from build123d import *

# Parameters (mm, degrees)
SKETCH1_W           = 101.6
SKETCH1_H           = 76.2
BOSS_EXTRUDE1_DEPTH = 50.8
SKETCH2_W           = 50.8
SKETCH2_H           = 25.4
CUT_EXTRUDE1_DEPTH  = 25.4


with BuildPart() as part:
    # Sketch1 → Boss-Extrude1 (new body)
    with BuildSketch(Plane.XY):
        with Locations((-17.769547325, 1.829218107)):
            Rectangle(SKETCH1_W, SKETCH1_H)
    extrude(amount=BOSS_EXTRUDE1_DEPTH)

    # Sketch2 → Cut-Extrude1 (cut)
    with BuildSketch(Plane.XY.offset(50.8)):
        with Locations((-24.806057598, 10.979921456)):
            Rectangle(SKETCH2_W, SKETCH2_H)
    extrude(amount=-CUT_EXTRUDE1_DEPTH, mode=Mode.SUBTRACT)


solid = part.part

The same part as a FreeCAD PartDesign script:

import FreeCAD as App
import Part
import Sketcher

V = App.Vector
Q = App.Units.Quantity

doc = App.newDocument("Part")
body = doc.addObject("PartDesign::Body", "Body")

# Sketch on XY plane
sketch1 = body.newObject("Sketcher::SketchObject", "Sketch")
sketch1.AttachmentSupport = (doc.getObject("XY_Plane"), [""])
sketch1.MapMode = "FlatFace"
sketch1.addGeometry(Part.LineSegment(V(-68.569547, 39.929218, 0), V(-68.569547, -36.270782, 0)), False)
sketch1.addGeometry(Part.LineSegment(V(-68.569547, -36.270782, 0), V(33.030453, -36.270782, 0)), False)
sketch1.addGeometry(Part.LineSegment(V(33.030453, -36.270782, 0), V(33.030453, 39.929218, 0)), False)
sketch1.addGeometry(Part.LineSegment(V(33.030453, 39.929218, 0), V(-68.569547, 39.929218, 0)), False)
sketch1.addConstraint(Sketcher.Constraint("Coincident", 0, 2, 1, 1))
sketch1.addConstraint(Sketcher.Constraint("Coincident", 1, 2, 2, 1))
sketch1.addConstraint(Sketcher.Constraint("Coincident", 2, 2, 3, 1))
sketch1.addConstraint(Sketcher.Constraint("Coincident", 3, 2, 0, 1))
sketch1.addConstraint(Sketcher.Constraint("Vertical", 0))
sketch1.addConstraint(Sketcher.Constraint("Horizontal", 1))
sketch1.addConstraint(Sketcher.Constraint("Vertical", 2))
sketch1.addConstraint(Sketcher.Constraint("Horizontal", 3))
sketch1.addConstraint(Sketcher.Constraint("DistanceX", 1, 1, 1, 2, Q("4 in")))
sketch1.addConstraint(Sketcher.Constraint("DistanceY", 0, 2, 0, 1, Q("3 in")))
sketch1.addConstraint(Sketcher.Constraint("DistanceY", 0, 2, -1, 1, Q("36.270782 mm")))
sketch1.addConstraint(Sketcher.Constraint("DistanceX", 0, 2, -1, 1, Q("68.569547 mm")))
pad1 = body.newObject("PartDesign::Pad", "Pad")
pad1.Profile = sketch1
pad1.Length = Q("2 in")

# Sketch on XY plane
sketch2 = body.newObject("Sketcher::SketchObject", "Sketch001")
sketch2.AttachmentSupport = (doc.getObject("XY_Plane"), [""])
sketch2.MapMode = "FlatFace"
sketch2.AttachmentOffset = App.Placement(V(0, 0, 2 * 25.4), App.Rotation())
sketch2.addGeometry(Part.LineSegment(V(-50.206058, 23.679921, 0), V(-50.206058, -1.720079, 0)), False)
sketch2.addGeometry(Part.LineSegment(V(-50.206058, -1.720079, 0), V(0.593942, -1.720079, 0)), False)
sketch2.addGeometry(Part.LineSegment(V(0.593942, -1.720079, 0), V(0.593942, 23.679921, 0)), False)
sketch2.addGeometry(Part.LineSegment(V(0.593942, 23.679921, 0), V(-50.206058, 23.679921, 0)), False)
sketch2.addConstraint(Sketcher.Constraint("Coincident", 0, 2, 1, 1))
sketch2.addConstraint(Sketcher.Constraint("Coincident", 1, 2, 2, 1))
sketch2.addConstraint(Sketcher.Constraint("Coincident", 2, 2, 3, 1))
sketch2.addConstraint(Sketcher.Constraint("Coincident", 3, 2, 0, 1))
sketch2.addConstraint(Sketcher.Constraint("Vertical", 0))
sketch2.addConstraint(Sketcher.Constraint("Horizontal", 1))
sketch2.addConstraint(Sketcher.Constraint("Vertical", 2))
sketch2.addConstraint(Sketcher.Constraint("Horizontal", 3))
sketch2.addConstraint(Sketcher.Constraint("DistanceX", 1, 1, 1, 2, Q("2 in")))
sketch2.addConstraint(Sketcher.Constraint("DistanceY", 0, 2, 0, 1, Q("1 in")))
sketch2.addConstraint(Sketcher.Constraint("DistanceY", 0, 2, -1, 1, Q("1.720079 mm")))
sketch2.addConstraint(Sketcher.Constraint("DistanceX", 0, 2, -1, 1, Q("50.206058 mm")))
pocket1 = body.newObject("PartDesign::Pocket", "Pocket")
pocket1.Profile = sketch2
pocket1.Length = Q("1 in")

doc.recompute()
